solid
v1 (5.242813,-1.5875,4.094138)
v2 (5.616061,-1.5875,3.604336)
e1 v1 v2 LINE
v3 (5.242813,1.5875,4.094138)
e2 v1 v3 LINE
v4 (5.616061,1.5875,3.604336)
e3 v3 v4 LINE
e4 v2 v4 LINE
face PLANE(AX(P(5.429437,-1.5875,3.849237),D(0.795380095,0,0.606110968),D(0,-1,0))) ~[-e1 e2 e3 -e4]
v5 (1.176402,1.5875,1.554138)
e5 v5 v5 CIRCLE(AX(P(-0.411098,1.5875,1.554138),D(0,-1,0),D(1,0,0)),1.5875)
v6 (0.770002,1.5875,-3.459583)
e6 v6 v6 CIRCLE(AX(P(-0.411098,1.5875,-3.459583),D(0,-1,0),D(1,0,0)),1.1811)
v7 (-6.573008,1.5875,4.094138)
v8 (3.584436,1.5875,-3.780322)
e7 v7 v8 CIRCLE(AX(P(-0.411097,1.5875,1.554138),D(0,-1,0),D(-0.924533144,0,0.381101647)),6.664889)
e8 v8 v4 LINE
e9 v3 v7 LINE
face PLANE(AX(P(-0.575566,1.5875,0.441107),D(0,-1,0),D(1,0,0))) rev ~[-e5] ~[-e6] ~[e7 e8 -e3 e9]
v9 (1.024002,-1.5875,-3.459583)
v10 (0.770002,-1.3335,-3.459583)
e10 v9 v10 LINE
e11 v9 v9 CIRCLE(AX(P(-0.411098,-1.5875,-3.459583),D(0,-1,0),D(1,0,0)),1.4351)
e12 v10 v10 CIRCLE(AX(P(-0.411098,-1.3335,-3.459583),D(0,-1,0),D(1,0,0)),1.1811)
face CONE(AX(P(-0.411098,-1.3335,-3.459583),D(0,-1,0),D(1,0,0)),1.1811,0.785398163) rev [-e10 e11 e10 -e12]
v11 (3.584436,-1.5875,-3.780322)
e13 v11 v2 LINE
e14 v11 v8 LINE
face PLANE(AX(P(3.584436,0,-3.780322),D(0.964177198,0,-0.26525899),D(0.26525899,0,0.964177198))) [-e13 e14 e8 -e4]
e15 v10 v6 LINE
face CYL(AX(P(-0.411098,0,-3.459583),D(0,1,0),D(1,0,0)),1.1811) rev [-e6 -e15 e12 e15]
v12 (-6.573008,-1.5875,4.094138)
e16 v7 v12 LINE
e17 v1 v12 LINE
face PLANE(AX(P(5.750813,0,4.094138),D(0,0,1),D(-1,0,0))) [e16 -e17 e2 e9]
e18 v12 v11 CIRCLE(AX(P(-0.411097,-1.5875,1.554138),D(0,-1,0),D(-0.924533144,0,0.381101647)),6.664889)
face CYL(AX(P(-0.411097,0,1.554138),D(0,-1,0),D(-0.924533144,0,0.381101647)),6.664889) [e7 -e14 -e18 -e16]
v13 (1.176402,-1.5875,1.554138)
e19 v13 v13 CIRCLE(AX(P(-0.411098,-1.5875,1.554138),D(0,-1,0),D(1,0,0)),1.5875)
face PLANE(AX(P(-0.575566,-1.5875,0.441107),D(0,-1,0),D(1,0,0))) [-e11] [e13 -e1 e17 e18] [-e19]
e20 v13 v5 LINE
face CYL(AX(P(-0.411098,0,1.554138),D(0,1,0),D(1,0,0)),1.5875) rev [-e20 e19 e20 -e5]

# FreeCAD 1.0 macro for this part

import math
import FreeCAD as App
import Part
import Sketcher
from FreeCAD import Vector
Q = App.Units.Quantity


def edges_at(feature, points):
    """Names of the edges that pass closest to the given points."""
    edges = feature.Shape.Edges
    near = lambda p: min(range(len(edges)), key=lambda i: edges[i].distToShape(Part.Vertex(*p))[0])
    return sorted({f"Edge{near(p) + 1}" for p in points})

doc = App.newDocument("Part")
params = doc.addObject("Spreadsheet::Sheet", "Params")
for row, (alias, value) in enumerate([
    ("sketch1_diameter", "0.093 in"),
    ("sketch1_diameter2", "0.125 in"),
    ("pad1_length", "0.125 in"),
    ("chamfer_size", "0.01 in"),
    ("chamfer_size2", "0.01 in"),
    ("chamfer2_size", "0.02 in"),
], start=1):
    params.set(f"A{row}", alias)
    params.set(f"B{row}", "=" + value)
    params.setAlias(f"B{row}", alias)

body = doc.addObject("PartDesign::Body", "Body")

# Sketch on XZ plane
sketch1 = body.newObject("Sketcher::SketchObject", "Sketch")
sketch1.AttachmentSupport = (doc.getObject("XZ_Plane"), [""])
sketch1.MapMode = "FlatFace"
sketch1.addGeometry(Part.LineSegment(Vector(5.8, 4.1, 0), Vector(-6.6, 4.1, 0)), False)
sketch1.addGeometry(Part.ArcOfCircle(Part.Circle(Vector(-0.4, 1.6, 0), Vector(0, 0, 1), 6.7), math.radians(158), math.radians(307)), False)
sketch1.addGeometry(Part.LineSegment(Vector(3.6, -3.8, 0), Vector(5.8, 4.1, 0)), False)
sketch1.addGeometry(Part.Circle(Vector(-0.4, -3.5, 0), Vector(0, 0, 1), 1.2), False)
sketch1.addGeometry(Part.Circle(Vector(-0.4, 1.6, 0), Vector(0, 0, 1), 1.6), False)
sketch1.addConstraint(Sketcher.Constraint("Coincident", 0, 2, 1, 1))
sketch1.addConstraint(Sketcher.Constraint("Coincident", 1, 2, 2, 1))
sketch1.addConstraint(Sketcher.Constraint("Coincident", 2, 2, 0, 1))
sketch1.addConstraint(Sketcher.Constraint("Horizontal", 0))
sketch1.addConstraint(Sketcher.Constraint("Coincident", 4, 3, 1, 3))
sketch1.addConstraint(Sketcher.Constraint("Vertical", 1, 3, 3, 3))
sketch1.addConstraint(Sketcher.Constraint("Diameter", 3, Q("0.093 in")))
sketch1.addConstraint(Sketcher.Constraint("Diameter", 4, Q("0.125 in")))
sketch1.addConstraint(Sketcher.Constraint("DistanceY", 4, 3, 0, 2, Q("0.1 in")))
sketch1.addConstraint(Sketcher.Constraint("Radius", 1, 6.664889))
sketch1.addConstraint(Sketcher.Constraint("DistanceX", 0, 2, 0, 1, 12.323821))
sketch1.addConstraint(Sketcher.Constraint("DistanceY", 3, 3, 1, 3, 5.013721))
sketch1.addConstraint(Sketcher.Constraint("DistanceY", 1, 2, 3, 3, 0.320739))
sketch1.addConstraint(Sketcher.Constraint("DistanceX", 1, 3, -1, 1, 0.411097))
sketch1.addConstraint(Sketcher.Constraint("DistanceY", -1, 1, 1, 3, 1.554138))
sketch1.setExpression("Constraints[6]", "Params.sketch1_diameter")
sketch1.setExpression("Constraints[7]", "Params.sketch1_diameter2")
pad1 = body.newObject("PartDesign::Pad", "Pad")
pad1.Profile = sketch1
pad1.setExpression("Length", "Params.pad1_length")
pad1.Midplane = True
doc.recompute()

chamfer = body.newObject("PartDesign::Chamfer", "Chamfer")
chamfer.Base = (pad1, edges_at(pad1, [(-1.592, -1.587, -3.46)]))
chamfer.ChamferType = "Two distances"
chamfer.setExpression("Size", "Params.chamfer_size")
chamfer.setExpression("Size2", "Params.chamfer_size2")
doc.recompute()

chamfer2 = body.newObject("PartDesign::Chamfer", "Chamfer001")
chamfer2.Base = (chamfer, edges_at(chamfer, [(5.751, 0, 4.094)]))
chamfer2.setExpression("Size", "Params.chamfer2_size")

doc.recompute()
